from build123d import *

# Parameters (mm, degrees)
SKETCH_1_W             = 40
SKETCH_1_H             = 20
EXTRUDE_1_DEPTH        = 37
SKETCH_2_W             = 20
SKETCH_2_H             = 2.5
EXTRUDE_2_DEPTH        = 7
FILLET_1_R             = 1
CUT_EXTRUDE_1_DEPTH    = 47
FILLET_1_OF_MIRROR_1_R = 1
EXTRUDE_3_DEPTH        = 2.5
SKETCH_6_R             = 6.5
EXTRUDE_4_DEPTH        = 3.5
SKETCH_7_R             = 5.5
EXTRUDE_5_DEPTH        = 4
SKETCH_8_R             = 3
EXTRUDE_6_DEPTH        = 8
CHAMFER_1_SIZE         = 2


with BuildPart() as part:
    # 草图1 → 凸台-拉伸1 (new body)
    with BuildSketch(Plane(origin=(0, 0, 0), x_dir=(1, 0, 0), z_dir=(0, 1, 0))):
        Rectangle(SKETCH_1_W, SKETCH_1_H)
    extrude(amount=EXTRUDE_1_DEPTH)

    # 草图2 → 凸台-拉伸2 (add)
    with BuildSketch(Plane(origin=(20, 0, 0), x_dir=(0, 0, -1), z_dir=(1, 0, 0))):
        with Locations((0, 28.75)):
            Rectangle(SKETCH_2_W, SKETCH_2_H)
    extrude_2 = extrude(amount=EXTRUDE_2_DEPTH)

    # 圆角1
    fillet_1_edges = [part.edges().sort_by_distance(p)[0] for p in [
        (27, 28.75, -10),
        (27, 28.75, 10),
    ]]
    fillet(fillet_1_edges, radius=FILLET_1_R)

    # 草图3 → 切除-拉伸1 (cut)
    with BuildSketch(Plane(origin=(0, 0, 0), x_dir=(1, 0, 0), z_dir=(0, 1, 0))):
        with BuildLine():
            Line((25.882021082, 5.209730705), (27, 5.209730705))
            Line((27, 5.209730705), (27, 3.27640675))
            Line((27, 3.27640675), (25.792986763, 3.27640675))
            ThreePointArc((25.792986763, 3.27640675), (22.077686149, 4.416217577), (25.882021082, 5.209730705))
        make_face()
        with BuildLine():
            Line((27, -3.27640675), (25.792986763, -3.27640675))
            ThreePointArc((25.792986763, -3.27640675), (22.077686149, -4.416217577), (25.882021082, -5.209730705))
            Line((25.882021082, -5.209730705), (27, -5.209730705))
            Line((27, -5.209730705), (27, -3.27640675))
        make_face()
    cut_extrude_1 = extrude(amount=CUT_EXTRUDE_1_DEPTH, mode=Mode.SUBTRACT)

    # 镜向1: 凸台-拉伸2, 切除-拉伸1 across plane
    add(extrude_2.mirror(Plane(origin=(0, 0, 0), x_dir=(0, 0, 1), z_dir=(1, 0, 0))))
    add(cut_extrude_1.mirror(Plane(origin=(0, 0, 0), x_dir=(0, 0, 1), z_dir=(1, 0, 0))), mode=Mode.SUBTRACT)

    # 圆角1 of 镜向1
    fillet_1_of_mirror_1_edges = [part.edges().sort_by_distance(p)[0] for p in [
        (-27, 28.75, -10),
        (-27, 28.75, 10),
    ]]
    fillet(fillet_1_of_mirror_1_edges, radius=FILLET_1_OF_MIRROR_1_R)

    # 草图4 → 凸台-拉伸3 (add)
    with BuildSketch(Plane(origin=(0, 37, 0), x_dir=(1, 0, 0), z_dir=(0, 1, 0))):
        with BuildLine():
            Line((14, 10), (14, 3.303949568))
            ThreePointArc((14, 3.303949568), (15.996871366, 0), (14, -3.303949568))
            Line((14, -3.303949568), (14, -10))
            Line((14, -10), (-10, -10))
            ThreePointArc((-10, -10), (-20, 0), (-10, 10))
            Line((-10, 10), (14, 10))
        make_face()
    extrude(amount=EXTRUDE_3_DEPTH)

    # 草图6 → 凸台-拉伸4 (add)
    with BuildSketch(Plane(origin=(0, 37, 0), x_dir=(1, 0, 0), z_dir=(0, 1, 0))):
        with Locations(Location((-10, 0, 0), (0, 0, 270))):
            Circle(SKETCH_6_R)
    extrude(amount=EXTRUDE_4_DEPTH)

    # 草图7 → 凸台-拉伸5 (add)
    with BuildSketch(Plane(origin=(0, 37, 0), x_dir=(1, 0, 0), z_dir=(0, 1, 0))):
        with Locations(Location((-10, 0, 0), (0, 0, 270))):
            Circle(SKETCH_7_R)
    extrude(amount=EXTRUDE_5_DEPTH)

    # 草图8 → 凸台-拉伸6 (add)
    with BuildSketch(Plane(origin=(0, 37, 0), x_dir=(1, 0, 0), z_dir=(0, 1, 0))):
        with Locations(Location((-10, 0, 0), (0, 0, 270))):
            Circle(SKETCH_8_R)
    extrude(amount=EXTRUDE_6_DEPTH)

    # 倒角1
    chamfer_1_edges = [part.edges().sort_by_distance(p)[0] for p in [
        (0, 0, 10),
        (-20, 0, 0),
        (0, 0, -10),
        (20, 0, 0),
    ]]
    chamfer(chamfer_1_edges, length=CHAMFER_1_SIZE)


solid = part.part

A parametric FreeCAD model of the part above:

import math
import FreeCAD as App
import Part
import Sketcher

V = App.Vector
Q = App.Units.Quantity


def edges_at(feature, points):
    """Names of the edges that pass closest to the given points."""
    edges = feature.Shape.Edges
    near = lambda p: min(range(len(edges)), key=lambda i: edges[i].distToShape(Part.Vertex(*p))[0])
    return sorted({f"Edge{near(p) + 1}" for p in points})


def add_polygon(sketch, points):
    """Adds a closed chain of lines whose ends are joined by coincident constraints."""
    first, n = sketch.GeometryCount, len(points)
    for a, b in zip(points, points[1:] + points[:1]):
        sketch.addGeometry(Part.LineSegment(App.Vector(*a, 0), App.Vector(*b, 0)), False)
    for i in range(n):
        sketch.addConstraint(Sketcher.Constraint("Coincident", first + i, 2, first + (i + 1) % n, 1))

doc = App.newDocument("Part")
body = doc.addObject("PartDesign::Body", "Body")

# Sketch on XZ plane
sketch1 = body.newObject("Sketcher::SketchObject", "Sketch")
sketch1.AttachmentSupport = (doc.getObject("XZ_Plane"), [""])
sketch1.MapMode = "FlatFace"
add_polygon(sketch1, [(-20, -10), (-20, 10), (20, 10), (20, -10)])  # lines 0-3
sketch1.addConstraint([
    Sketcher.Constraint("Vertical", 0),
    Sketcher.Constraint("Horizontal", 1),
    Sketcher.Constraint("Vertical", 2),
    Sketcher.Constraint("Horizontal", 3),
    Sketcher.Constraint("Symmetric", 0, 2, 2, 2, -1, 1),
    Sketcher.Constraint("DistanceX", 1, 1, 1, 2, Q("40 mm")),
    Sketcher.Constraint("DistanceY", 0, 1, 0, 2, Q("20 mm")),
])
pad1 = body.newObject("PartDesign::Pad", "Pad")
pad1.Profile = sketch1
pad1.Length = 37
pad1.Reversed = True

# Sketch on YZ plane
sketch2 = body.newObject("Sketcher::SketchObject", "Sketch001")
sketch2.AttachmentSupport = (doc.getObject("YZ_Plane"), [""])
sketch2.MapMode = "FlatFace"
sketch2.AttachmentOffset = App.Placement(V(0, 0, 20), App.Rotation())
add_polygon(sketch2, [(30, 10), (27.5, 10), (27.5, -10), (30, -10)])  # lines 0-3
sketch2.addConstraint([
    Sketcher.Constraint("Horizontal", 0),
    Sketcher.Constraint("Vertical", 1),
    Sketcher.Constraint("Horizontal", 2),
    Sketcher.Constraint("Vertical", 3),
    Sketcher.Constraint("DistanceY", 1, 2, 1, 1, Q("20 mm")),
    Sketcher.Constraint("DistanceX", 0, 2, 0, 1, Q("2.5 mm")),
    Sketcher.Constraint("DistanceY", -1, 1, 0, 2, Q("10 mm")),
    Sketcher.Constraint("DistanceX", -1, 1, 2, 2, Q("30 mm")),
])
pad2 = body.newObject("PartDesign::Pad", "Pad001")
pad2.Profile = sketch2
pad2.Length = 7
doc.recompute()

fillet = body.newObject("PartDesign::Fillet", "Fillet")
fillet.Base = (pad2, edges_at(pad2, [(27, 28.75, -10), (27, 28.75, 10)]))
fillet.Radius = 1

# Sketch on XZ plane
sketch3 = body.newObject("Sketcher::SketchObject", "Sketch002")
sketch3.AttachmentSupport = (doc.getObject("XZ_Plane"), [""])
sketch3.MapMode = "FlatFace"
sketch3.addGeometry([
    Part.LineSegment(V(27, -5.2, 0), V(25.9, -5.2, 0)),  # 0
    Part.ArcOfCircle(Part.Circle(V(24.1, -4.3, 0), V(0, 0, 1), 2), math.radians(31), math.radians(334)),  # 1
    Part.LineSegment(V(25.8, -3.3, 0), V(27, -3.3, 0)),  # 2
    Part.LineSegment(V(27, -3.3, 0), V(27, -5.2, 0)),  # 3
    Part.LineSegment(V(27, 3.3, 0), V(25.8, 3.3, 0)),  # 4
    Part.ArcOfCircle(Part.Circle(V(24.1, 4.3, 0), V(0, 0, 1), 2), math.radians(26), math.radians(329)),  # 5
    Part.LineSegment(V(25.9, 5.2, 0), V(27, 5.2, 0)),  # 6
    Part.LineSegment(V(27, 5.2, 0), V(27, 3.3, 0)),  # 7
], False)
sketch3.addConstraint([
    Sketcher.Constraint("Coincident", 0, 2, 1, 2),
    Sketcher.Constraint("Coincident", 1, 1, 2, 1),
    Sketcher.Constraint("Coincident", 2, 2, 3, 1),
    Sketcher.Constraint("Coincident", 3, 2, 0, 1),
    Sketcher.Constraint("Coincident", 4, 2, 5, 2),
    Sketcher.Constraint("Coincident", 5, 1, 6, 1),
    Sketcher.Constraint("Coincident", 6, 2, 7, 1),
    Sketcher.Constraint("Coincident", 7, 2, 4, 1),
    Sketcher.Constraint("Horizontal", 0),
    Sketcher.Constraint("Horizontal", 2),
    Sketcher.Constraint("Vertical", 3),
    Sketcher.Constraint("Horizontal", 4),
    Sketcher.Constraint("Horizontal", 6),
    Sketcher.Constraint("Vertical", 7),
    Sketcher.Constraint("Equal", 1, 5),
    Sketcher.Constraint("Symmetric", 1, 3, 5, 3, -1),
    Sketcher.Constraint("Symmetric", 3, 2, 6, 2, -1),
    Sketcher.Constraint("Vertical", 1, 1, 4, 2),
    Sketcher.Constraint("DistanceX", -1, 1, 2, 2, Q("27 mm")),
    Sketcher.Constraint("Radius", 1, Q("2.006299 mm")),
    Sketcher.Constraint("DistanceX", 0, 2, 0, 1, Q("1.117979 mm")),
    Sketcher.Constraint("DistanceX", 2, 1, 2, 2, Q("1.207013 mm")),
    Sketcher.Constraint("DistanceY", 3, 2, 3, 1, Q("1.933324 mm")),
    Sketcher.Constraint("DistanceY", 1, 3, -1, 1, Q("4.32392 mm")),
])
pocket1 = body.newObject("PartDesign::Pocket", "Pocket")
pocket1.Profile = sketch3
pocket1.Length = 47
doc.recompute()

mirrored = body.newObject("PartDesign::Mirrored", "Mirrored")
mirrored.Originals = [pad2, pocket1]
mirrored.MirrorPlane = (doc.getObject("YZ_Plane"), [""])
body.Tip = mirrored
doc.recompute()

fillet2 = body.newObject("PartDesign::Fillet", "Fillet001")
fillet2.Base = (mirrored, edges_at(mirrored, [(-27, 28.75, -10), (-27, 28.75, 10)]))
fillet2.Radius = 1

# Sketch on XZ plane
sketch4 = body.newObject("Sketcher::SketchObject", "Sketch003")
sketch4.AttachmentSupport = (doc.getObject("XZ_Plane"), [""])
sketch4.MapMode = "FlatFace"
sketch4.AttachmentOffset = App.Placement(V(0, 0, -37), App.Rotation())
sketch4.addGeometry([
    Part.LineSegment(V(14, -3.3, 0), V(14, -10, 0)),  # 0
    Part.LineSegment(V(14, -10, 0), V(-10, -10, 0)),  # 1
    Part.ArcOfCircle(Part.Circle(V(-10, 0, 0), V(0, 0, 1), 10), math.radians(90), math.radians(270)),  # 2
    Part.LineSegment(V(-10, 10, 0), V(14, 10, 0)),  # 3
    Part.LineSegment(V(14, 10, 0), V(14, 3.3, 0)),  # 4
    Part.ArcOfCircle(Part.Circle(V(12.3, 0, 0), V(0, 0, 1), 3.7), math.radians(-62), math.radians(62)),  # 5
], False)
sketch4.addConstraint([
    Sketcher.Constraint("Coincident", 0, 2, 1, 1),
    Sketcher.Constraint("Tangent", 1, 2, 2, 2),
    Sketcher.Constraint("Tangent", 2, 1, 3, 1),
    Sketcher.Constraint("Coincident", 3, 2, 4, 1),
    Sketcher.Constraint("Coincident", 4, 2, 5, 2),
    Sketcher.Constraint("Coincident", 5, 1, 0, 1),
    Sketcher.Constraint("Vertical", 0),
    Sketcher.Constraint("Horizontal", 1),
    Sketcher.Constraint("Horizontal", 3),
    Sketcher.Constraint("Vertical", 4),
    Sketcher.Constraint("Symmetric", 0, 2, 3, 2, -1),
    Sketcher.Constraint("PointOnObject", 5, 3, -1),
    Sketcher.Constraint("Radius", 2, Q("10 mm")),
    Sketcher.Constraint("DistanceX", 1, 2, 1, 1, Q("24 mm")),
    Sketcher.Constraint("DistanceX", 2, 3, -1, 1, Q("10 mm")),
    Sketcher.Constraint("Radius", 5, Q("3.731732 mm")),
    Sketcher.Constraint("DistanceY", 0, 2, 0, 1, Q("6.69605 mm")),
])
pad3 = body.newObject("PartDesign::Pad", "Pad002")
pad3.Profile = sketch4
pad3.Length = 2.5
pad3.Reversed = True

# Sketch on XZ plane
sketch5 = body.newObject("Sketcher::SketchObject", "Sketch004")
sketch5.AttachmentSupport = (doc.getObject("XZ_Plane"), [""])
sketch5.MapMode = "FlatFace"
sketch5.AttachmentOffset = App.Placement(V(0, 0, -37), App.Rotation())
sketch5.addGeometry(Part.Circle(V(-10, 0, 0), V(0, 0, 1), 6), False)
sketch5.addConstraint([
    Sketcher.Constraint("PointOnObject", 0, 3, -1),
    Sketcher.Constraint("Diameter", 0, Q("13 mm")),
    Sketcher.Constraint("DistanceX", 0, 3, -1, 1, Q("10 mm")),
])
pad4 = body.newObject("PartDesign::Pad", "Pad003")
pad4.Profile = sketch5
pad4.Length = 3.5
pad4.Reversed = True

# Sketch on XZ plane
sketch6 = body.newObject("Sketcher::SketchObject", "Sketch005")
sketch6.AttachmentSupport = (doc.getObject("XZ_Plane"), [""])
sketch6.MapMode = "FlatFace"
sketch6.AttachmentOffset = App.Placement(V(0, 0, -37), App.Rotation())
sketch6.addGeometry(Part.Circle(V(-10, 0, 0), V(0, 0, 1), 6), False)
sketch6.addConstraint([
    Sketcher.Constraint("PointOnObject", 0, 3, -1),
    Sketcher.Constraint("Diameter", 0, Q("11 mm")),
    Sketcher.Constraint("DistanceX", 0, 3, -1, 1, Q("10 mm")),
])
pad5 = body.newObject("PartDesign::Pad", "Pad004")
pad5.Profile = sketch6
pad5.Length = 4
pad5.Reversed = True

# Sketch on XZ plane
sketch7 = body.newObject("Sketcher::SketchObject", "Sketch006")
sketch7.AttachmentSupport = (doc.getObject("XZ_Plane"), [""])
sketch7.MapMode = "FlatFace"
sketch7.AttachmentOffset = App.Placement(V(0, 0, -37), App.Rotation())
sketch7.addGeometry(Part.Circle(V(-10, 0, 0), V(0, 0, 1), 3), False)
sketch7.addConstraint([
    Sketcher.Constraint("PointOnObject", 0, 3, -1),
    Sketcher.Constraint("Diameter", 0, Q("6 mm")),
    Sketcher.Constraint("DistanceX", 0, 3, -1, 1, Q("10 mm")),
])
pad6 = body.newObject("PartDesign::Pad", "Pad005")
pad6.Profile = sketch7
pad6.Length = 8
pad6.Reversed = True
doc.recompute()

chamfer = body.newObject("PartDesign::Chamfer", "Chamfer")
chamfer.Base = (pad6, edges_at(pad6, [
    (0, 0, 10),
    (-20, 0, 0),
    (0, 0, -10),
    (20, 0, 0),
]))
chamfer.Size = 2

doc.recompute()
